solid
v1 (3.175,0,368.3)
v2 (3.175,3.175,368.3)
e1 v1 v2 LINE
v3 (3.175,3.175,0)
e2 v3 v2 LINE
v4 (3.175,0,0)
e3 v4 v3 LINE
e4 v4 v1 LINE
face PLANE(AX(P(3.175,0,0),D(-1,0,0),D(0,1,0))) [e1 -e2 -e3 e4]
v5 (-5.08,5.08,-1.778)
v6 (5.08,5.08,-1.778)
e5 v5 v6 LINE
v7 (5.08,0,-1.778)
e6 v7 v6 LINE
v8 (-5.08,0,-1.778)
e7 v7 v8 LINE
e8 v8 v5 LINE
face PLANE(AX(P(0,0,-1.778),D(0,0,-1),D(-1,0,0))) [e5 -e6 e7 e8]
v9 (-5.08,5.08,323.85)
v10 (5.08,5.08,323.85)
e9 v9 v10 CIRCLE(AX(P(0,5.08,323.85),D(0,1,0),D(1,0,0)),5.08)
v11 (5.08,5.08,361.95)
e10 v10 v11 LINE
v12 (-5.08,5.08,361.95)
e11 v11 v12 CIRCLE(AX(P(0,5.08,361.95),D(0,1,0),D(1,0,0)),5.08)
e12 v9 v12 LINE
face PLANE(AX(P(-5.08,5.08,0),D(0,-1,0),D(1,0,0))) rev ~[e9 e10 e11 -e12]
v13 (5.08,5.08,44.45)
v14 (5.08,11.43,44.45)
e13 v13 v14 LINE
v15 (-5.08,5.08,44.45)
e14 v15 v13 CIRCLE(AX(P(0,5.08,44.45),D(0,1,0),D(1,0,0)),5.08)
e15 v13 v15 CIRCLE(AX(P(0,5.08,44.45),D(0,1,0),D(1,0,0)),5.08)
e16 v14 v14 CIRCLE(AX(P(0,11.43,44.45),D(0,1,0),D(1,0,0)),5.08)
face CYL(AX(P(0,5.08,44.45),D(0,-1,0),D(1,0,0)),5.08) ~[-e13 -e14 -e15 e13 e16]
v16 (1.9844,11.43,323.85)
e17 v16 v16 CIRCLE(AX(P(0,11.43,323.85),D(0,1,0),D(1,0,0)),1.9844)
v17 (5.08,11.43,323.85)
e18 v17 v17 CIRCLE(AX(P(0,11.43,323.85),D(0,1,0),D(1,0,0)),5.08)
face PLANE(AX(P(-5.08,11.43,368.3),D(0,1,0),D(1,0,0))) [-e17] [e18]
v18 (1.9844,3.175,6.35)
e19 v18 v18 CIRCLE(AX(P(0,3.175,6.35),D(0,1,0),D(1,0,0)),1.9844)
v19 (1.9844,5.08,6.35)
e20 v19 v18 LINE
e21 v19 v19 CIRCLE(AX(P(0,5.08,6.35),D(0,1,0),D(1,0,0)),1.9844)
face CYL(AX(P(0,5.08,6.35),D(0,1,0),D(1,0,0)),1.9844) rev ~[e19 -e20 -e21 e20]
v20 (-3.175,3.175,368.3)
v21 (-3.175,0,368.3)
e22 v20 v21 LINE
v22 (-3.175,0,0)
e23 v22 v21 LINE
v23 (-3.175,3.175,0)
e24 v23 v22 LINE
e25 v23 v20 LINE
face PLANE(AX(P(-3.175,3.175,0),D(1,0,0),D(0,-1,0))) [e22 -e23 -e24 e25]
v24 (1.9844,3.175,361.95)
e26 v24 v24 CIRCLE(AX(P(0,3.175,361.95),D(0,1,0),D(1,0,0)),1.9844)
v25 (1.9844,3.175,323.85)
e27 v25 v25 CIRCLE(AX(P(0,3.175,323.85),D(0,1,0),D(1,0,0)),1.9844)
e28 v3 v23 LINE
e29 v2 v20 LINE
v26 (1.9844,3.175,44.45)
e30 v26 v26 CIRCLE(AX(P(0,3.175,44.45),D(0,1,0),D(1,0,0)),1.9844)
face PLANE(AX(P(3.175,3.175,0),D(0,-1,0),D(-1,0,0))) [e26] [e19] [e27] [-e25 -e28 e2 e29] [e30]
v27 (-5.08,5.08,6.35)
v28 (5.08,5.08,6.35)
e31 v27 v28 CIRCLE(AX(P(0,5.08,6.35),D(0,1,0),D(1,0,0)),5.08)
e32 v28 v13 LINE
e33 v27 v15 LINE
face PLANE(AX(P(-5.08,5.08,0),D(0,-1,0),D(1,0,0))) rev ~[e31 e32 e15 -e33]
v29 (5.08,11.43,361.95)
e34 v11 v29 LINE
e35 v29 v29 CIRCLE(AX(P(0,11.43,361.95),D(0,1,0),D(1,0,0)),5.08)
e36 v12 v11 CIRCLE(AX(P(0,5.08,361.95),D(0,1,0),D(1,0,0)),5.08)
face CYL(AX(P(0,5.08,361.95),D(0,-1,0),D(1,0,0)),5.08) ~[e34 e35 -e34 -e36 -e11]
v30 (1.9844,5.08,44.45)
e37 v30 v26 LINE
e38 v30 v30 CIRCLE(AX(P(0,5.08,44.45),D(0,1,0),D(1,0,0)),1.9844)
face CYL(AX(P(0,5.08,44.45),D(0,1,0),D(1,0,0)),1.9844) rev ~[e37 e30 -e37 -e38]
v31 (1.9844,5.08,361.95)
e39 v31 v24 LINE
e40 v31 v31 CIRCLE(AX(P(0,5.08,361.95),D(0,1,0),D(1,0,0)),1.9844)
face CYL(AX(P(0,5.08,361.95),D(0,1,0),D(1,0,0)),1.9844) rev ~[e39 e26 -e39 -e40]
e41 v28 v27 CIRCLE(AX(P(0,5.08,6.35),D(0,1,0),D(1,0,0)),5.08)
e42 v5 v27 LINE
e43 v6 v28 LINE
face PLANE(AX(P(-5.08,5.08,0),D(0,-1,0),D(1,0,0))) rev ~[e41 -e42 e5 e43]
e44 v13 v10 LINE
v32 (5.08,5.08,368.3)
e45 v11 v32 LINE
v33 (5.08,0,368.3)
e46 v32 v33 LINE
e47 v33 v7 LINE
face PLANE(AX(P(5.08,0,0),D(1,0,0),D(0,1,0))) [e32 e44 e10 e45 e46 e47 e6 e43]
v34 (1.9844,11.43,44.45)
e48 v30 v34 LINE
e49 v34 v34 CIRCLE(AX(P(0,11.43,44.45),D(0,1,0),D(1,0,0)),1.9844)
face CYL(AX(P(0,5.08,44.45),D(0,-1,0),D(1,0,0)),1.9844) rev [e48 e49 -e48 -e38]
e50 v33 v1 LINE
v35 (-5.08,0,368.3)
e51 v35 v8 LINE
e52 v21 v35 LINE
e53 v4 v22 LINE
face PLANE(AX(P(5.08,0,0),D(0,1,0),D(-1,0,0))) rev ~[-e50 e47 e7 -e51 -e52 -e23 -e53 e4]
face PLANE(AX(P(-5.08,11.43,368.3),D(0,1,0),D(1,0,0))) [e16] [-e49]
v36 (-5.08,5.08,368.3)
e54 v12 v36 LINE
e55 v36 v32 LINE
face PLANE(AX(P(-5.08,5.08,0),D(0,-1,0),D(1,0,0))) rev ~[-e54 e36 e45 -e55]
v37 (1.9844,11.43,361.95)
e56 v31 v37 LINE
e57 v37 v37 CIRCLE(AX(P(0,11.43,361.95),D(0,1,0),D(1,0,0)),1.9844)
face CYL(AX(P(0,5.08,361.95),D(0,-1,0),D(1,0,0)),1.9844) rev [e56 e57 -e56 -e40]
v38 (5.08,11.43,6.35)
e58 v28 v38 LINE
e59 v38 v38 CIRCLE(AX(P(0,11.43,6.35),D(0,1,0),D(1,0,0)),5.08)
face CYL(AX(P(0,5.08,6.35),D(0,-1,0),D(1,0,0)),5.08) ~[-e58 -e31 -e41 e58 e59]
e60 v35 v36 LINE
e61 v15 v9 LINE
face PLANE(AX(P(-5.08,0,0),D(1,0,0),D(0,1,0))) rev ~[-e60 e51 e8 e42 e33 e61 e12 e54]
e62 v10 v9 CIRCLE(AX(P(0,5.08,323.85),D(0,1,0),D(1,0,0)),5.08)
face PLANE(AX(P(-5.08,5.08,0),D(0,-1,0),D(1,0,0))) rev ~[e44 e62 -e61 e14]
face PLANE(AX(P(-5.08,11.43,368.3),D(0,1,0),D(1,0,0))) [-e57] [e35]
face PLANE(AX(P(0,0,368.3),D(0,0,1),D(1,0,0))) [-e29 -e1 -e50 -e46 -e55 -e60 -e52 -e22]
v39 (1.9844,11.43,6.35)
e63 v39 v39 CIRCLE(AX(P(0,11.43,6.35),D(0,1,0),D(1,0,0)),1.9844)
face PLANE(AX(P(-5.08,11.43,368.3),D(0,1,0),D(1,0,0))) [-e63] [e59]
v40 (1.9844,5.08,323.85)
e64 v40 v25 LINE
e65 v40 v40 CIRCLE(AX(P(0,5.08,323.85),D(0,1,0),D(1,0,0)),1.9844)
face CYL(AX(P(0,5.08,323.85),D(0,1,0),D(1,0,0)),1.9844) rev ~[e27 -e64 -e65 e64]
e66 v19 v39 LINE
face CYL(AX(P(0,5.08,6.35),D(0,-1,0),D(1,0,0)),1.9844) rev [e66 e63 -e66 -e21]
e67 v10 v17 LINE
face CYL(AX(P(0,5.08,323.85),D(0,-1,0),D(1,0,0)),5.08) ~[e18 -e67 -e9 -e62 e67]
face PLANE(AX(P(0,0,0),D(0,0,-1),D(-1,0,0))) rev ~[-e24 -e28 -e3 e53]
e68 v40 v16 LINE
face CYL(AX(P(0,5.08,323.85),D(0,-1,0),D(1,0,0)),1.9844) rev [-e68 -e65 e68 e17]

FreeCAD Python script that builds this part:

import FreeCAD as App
import Part
import Sketcher

V = App.Vector
Q = App.Units.Quantity


def add_polygon(sketch, points):
    """Adds a closed chain of lines whose ends are joined by coincident constraints."""
    first, n = sketch.GeometryCount, len(points)
    for a, b in zip(points, points[1:] + points[:1]):
        sketch.addGeometry(Part.LineSegment(App.Vector(*a, 0), App.Vector(*b, 0)), False)
    for i in range(n):
        sketch.addConstraint(Sketcher.Constraint("Coincident", first + i, 2, first + (i + 1) % n, 1))

doc = App.newDocument("Part")
body = doc.addObject("PartDesign::Body", "Body")

# Sketch on XY plane
sketch1 = body.newObject("Sketcher::SketchObject", "Sketch")
sketch1.AttachmentSupport = (doc.getObject("XY_Plane"), [""])
sketch1.MapMode = "FlatFace"
add_polygon(sketch1, [(3.2, 3.2), (3.2, 0), (5.1, 0), (5.1, 5.1), (-5.1, 5.1), (-5.1, 0), (-3.2, 0), (-3.2, 3.2)])  # lines 0-7
sketch1.addConstraint(Sketcher.Constraint("Vertical", 0))
sketch1.addConstraint(Sketcher.Constraint("Horizontal", 1))
sketch1.addConstraint(Sketcher.Constraint("Vertical", 2))
sketch1.addConstraint(Sketcher.Constraint("Horizontal", 3))
sketch1.addConstraint(Sketcher.Constraint("Vertical", 4))
sketch1.addConstraint(Sketcher.Constraint("Horizontal", 5))
sketch1.addConstraint(Sketcher.Constraint("Vertical", 6))
sketch1.addConstraint(Sketcher.Constraint("Horizontal", 7))
sketch1.addConstraint(Sketcher.Constraint("Symmetric", 1, 2, 4, 2, -1, 1))
sketch1.addConstraint(Sketcher.Constraint("Symmetric", 0, 2, 5, 2, -2))
sketch1.addConstraint(Sketcher.Constraint("DistanceX", 3, 2, 3, 1, Q("0.4 in")))
sketch1.addConstraint(Sketcher.Constraint("DistanceY", 2, 1, 2, 2, Q("0.2 in")))
sketch1.addConstraint(Sketcher.Constraint("DistanceX", 7, 1, 7, 2, Q("0.25 in")))
sketch1.addConstraint(Sketcher.Constraint("DistanceY", 0, 2, 0, 1, Q("0.125 in")))
pad1 = body.newObject("PartDesign::Pad", "Pad")
pad1.Profile = sketch1
pad1.Length = Q("14.5 in")

# Sketch on XZ plane
sketch2 = body.newObject("Sketcher::SketchObject", "Sketch001")
sketch2.AttachmentSupport = (doc.getObject("XZ_Plane"), [""])
sketch2.MapMode = "FlatFace"
sketch2.AttachmentOffset = App.Placement(V(0, 0, -0.2 * 25.4), App.Rotation())
sketch2.addGeometry(Part.Circle(V(0, 6.3, 0), V(0, 0, 1), 2), False)
sketch2.addGeometry(Part.Circle(V(0, 44.5, 0), V(0, 0, 1), 2), False)
sketch2.addGeometry(Part.Circle(V(0, 361.9, 0), V(0, 0, 1), 2), False)
sketch2.addGeometry(Part.Circle(V(0, 323.9, 0), V(0, 0, 1), 2), False)
sketch2.addConstraint(Sketcher.Constraint("Equal", 0, 1))
sketch2.addConstraint(Sketcher.Constraint("Equal", 1, 2))
sketch2.addConstraint(Sketcher.Constraint("Equal", 2, 3))
sketch2.addConstraint(Sketcher.Constraint("PointOnObject", 0, 3, -2))
sketch2.addConstraint(Sketcher.Constraint("PointOnObject", 1, 3, -2))
sketch2.addConstraint(Sketcher.Constraint("PointOnObject", 2, 3, -2))
sketch2.addConstraint(Sketcher.Constraint("PointOnObject", 3, 3, -2))
sketch2.addConstraint(Sketcher.Constraint("Diameter", 0, Q("0.156252 in")))
sketch2.addConstraint(Sketcher.Constraint("DistanceY", 0, 3, 2, 3, Q("14 in")))
sketch2.addConstraint(Sketcher.Constraint("DistanceY", 1, 3, 3, 3, Q("11 in")))
sketch2.addConstraint(Sketcher.Constraint("DistanceY", 0, 3, 1, 3, Q("1.5 in")))
sketch2.addConstraint(Sketcher.Constraint("DistanceY", -1, 1, 0, 3, Q("0.25 in")))
pocket1 = body.newObject("PartDesign::Pocket", "Pocket")
pocket1.Profile = sketch2
pocket1.Length = Q("14.5 in")
pocket1.Reversed = True

# Sketch on XY plane
sketch3 = body.newObject("Sketcher::SketchObject", "Sketch002")
sketch3.AttachmentSupport = (doc.getObject("XY_Plane"), [""])
sketch3.MapMode = "FlatFace"
add_polygon(sketch3, [(5, 5), (5, 0), (-5, 0), (-5, 5)])  # lines 0-3
sketch3.addConstraint(Sketcher.Constraint("Vertical", 0))
sketch3.addConstraint(Sketcher.Constraint("Horizontal", 1))
sketch3.addConstraint(Sketcher.Constraint("Vertical", 2))
sketch3.addConstraint(Sketcher.Constraint("Horizontal", 3))
sketch3.addConstraint(Sketcher.Constraint("Symmetric", 0, 2, 1, 2, -1, 1))
sketch3.addConstraint(Sketcher.Constraint("DistanceX", 1, 2, 1, 1, Q("0.4 in")))
sketch3.addConstraint(Sketcher.Constraint("DistanceY", 0, 2, 0, 1, Q("0.2 in")))
pad2 = body.newObject("PartDesign::Pad", "Pad001")
pad2.Profile = sketch3
pad2.Length = Q("0.07 in")
pad2.Reversed = True

# Sketch on XZ plane
sketch4 = body.newObject("Sketcher::SketchObject", "Sketch003")
sketch4.AttachmentSupport = (doc.getObject("XZ_Plane"), [""])
sketch4.MapMode = "FlatFace"
sketch4.AttachmentOffset = App.Placement(V(0, 0, -0.2 * 25.4), App.Rotation())
sketch4.addGeometry(Part.Circle(V(0, 361.9, 0), V(0, 0, 1), 5.1), False)
sketch4.addGeometry(Part.Circle(V(0, 361.9, 0), V(0, 0, 1), 2), False)
sketch4.addGeometry(Part.Circle(V(0, 323.9, 0), V(0, 0, 1), 5.1), False)
sketch4.addGeometry(Part.Circle(V(0, 323.9, 0), V(0, 0, 1), 2), False)
sketch4.addGeometry(Part.Circle(V(0, 44.5, 0), V(0, 0, 1), 5.1), False)
sketch4.addGeometry(Part.Circle(V(0, 44.5, 0), V(0, 0, 1), 2), False)
sketch4.addGeometry(Part.Circle(V(0, 6.3, 0), V(0, 0, 1), 5.1), False)
sketch4.addGeometry(Part.Circle(V(0, 6.3, 0), V(0, 0, 1), 2), False)
sketch4.addConstraint(Sketcher.Constraint("Coincident", 1, 3, 0, 3))
sketch4.addConstraint(Sketcher.Constraint("Coincident", 3, 3, 2, 3))
sketch4.addConstraint(Sketcher.Constraint("Coincident", 5, 3, 4, 3))
sketch4.addConstraint(Sketcher.Constraint("Coincident", 7, 3, 6, 3))
sketch4.addConstraint(Sketcher.Constraint("Equal", 0, 2))
sketch4.addConstraint(Sketcher.Constraint("Equal", 1, 3))
sketch4.addConstraint(Sketcher.Constraint("Equal", 2, 4))
sketch4.addConstraint(Sketcher.Constraint("Equal", 3, 5))
sketch4.addConstraint(Sketcher.Constraint("Equal", 4, 6))
sketch4.addConstraint(Sketcher.Constraint("Equal", 5, 7))
sketch4.addConstraint(Sketcher.Constraint("PointOnObject", 0, 3, -2))
sketch4.addConstraint(Sketcher.Constraint("PointOnObject", 2, 3, -2))
sketch4.addConstraint(Sketcher.Constraint("PointOnObject", 4, 3, -2))
sketch4.addConstraint(Sketcher.Constraint("PointOnObject", 6, 3, -2))
sketch4.addConstraint(Sketcher.Constraint("Diameter", 0, Q("0.4 in")))
sketch4.addConstraint(Sketcher.Constraint("Diameter", 1, Q("0.156252 in")))
sketch4.addConstraint(Sketcher.Constraint("DistanceY", 4, 3, 2, 3, Q("11 in")))
sketch4.addConstraint(Sketcher.Constraint("DistanceY", 6, 3, 0, 3, Q("14 in")))
sketch4.addConstraint(Sketcher.Constraint("DistanceY", 2, 3, 0, 3, Q("1.5 in")))
sketch4.addConstraint(Sketcher.Constraint("DistanceY", -1, 1, 0, 3, Q("14.25 in")))
pad3 = body.newObject("PartDesign::Pad", "Pad002")
pad3.Profile = sketch4
pad3.Length = Q("0.25 in")
pad3.Reversed = True

doc.recompute()
